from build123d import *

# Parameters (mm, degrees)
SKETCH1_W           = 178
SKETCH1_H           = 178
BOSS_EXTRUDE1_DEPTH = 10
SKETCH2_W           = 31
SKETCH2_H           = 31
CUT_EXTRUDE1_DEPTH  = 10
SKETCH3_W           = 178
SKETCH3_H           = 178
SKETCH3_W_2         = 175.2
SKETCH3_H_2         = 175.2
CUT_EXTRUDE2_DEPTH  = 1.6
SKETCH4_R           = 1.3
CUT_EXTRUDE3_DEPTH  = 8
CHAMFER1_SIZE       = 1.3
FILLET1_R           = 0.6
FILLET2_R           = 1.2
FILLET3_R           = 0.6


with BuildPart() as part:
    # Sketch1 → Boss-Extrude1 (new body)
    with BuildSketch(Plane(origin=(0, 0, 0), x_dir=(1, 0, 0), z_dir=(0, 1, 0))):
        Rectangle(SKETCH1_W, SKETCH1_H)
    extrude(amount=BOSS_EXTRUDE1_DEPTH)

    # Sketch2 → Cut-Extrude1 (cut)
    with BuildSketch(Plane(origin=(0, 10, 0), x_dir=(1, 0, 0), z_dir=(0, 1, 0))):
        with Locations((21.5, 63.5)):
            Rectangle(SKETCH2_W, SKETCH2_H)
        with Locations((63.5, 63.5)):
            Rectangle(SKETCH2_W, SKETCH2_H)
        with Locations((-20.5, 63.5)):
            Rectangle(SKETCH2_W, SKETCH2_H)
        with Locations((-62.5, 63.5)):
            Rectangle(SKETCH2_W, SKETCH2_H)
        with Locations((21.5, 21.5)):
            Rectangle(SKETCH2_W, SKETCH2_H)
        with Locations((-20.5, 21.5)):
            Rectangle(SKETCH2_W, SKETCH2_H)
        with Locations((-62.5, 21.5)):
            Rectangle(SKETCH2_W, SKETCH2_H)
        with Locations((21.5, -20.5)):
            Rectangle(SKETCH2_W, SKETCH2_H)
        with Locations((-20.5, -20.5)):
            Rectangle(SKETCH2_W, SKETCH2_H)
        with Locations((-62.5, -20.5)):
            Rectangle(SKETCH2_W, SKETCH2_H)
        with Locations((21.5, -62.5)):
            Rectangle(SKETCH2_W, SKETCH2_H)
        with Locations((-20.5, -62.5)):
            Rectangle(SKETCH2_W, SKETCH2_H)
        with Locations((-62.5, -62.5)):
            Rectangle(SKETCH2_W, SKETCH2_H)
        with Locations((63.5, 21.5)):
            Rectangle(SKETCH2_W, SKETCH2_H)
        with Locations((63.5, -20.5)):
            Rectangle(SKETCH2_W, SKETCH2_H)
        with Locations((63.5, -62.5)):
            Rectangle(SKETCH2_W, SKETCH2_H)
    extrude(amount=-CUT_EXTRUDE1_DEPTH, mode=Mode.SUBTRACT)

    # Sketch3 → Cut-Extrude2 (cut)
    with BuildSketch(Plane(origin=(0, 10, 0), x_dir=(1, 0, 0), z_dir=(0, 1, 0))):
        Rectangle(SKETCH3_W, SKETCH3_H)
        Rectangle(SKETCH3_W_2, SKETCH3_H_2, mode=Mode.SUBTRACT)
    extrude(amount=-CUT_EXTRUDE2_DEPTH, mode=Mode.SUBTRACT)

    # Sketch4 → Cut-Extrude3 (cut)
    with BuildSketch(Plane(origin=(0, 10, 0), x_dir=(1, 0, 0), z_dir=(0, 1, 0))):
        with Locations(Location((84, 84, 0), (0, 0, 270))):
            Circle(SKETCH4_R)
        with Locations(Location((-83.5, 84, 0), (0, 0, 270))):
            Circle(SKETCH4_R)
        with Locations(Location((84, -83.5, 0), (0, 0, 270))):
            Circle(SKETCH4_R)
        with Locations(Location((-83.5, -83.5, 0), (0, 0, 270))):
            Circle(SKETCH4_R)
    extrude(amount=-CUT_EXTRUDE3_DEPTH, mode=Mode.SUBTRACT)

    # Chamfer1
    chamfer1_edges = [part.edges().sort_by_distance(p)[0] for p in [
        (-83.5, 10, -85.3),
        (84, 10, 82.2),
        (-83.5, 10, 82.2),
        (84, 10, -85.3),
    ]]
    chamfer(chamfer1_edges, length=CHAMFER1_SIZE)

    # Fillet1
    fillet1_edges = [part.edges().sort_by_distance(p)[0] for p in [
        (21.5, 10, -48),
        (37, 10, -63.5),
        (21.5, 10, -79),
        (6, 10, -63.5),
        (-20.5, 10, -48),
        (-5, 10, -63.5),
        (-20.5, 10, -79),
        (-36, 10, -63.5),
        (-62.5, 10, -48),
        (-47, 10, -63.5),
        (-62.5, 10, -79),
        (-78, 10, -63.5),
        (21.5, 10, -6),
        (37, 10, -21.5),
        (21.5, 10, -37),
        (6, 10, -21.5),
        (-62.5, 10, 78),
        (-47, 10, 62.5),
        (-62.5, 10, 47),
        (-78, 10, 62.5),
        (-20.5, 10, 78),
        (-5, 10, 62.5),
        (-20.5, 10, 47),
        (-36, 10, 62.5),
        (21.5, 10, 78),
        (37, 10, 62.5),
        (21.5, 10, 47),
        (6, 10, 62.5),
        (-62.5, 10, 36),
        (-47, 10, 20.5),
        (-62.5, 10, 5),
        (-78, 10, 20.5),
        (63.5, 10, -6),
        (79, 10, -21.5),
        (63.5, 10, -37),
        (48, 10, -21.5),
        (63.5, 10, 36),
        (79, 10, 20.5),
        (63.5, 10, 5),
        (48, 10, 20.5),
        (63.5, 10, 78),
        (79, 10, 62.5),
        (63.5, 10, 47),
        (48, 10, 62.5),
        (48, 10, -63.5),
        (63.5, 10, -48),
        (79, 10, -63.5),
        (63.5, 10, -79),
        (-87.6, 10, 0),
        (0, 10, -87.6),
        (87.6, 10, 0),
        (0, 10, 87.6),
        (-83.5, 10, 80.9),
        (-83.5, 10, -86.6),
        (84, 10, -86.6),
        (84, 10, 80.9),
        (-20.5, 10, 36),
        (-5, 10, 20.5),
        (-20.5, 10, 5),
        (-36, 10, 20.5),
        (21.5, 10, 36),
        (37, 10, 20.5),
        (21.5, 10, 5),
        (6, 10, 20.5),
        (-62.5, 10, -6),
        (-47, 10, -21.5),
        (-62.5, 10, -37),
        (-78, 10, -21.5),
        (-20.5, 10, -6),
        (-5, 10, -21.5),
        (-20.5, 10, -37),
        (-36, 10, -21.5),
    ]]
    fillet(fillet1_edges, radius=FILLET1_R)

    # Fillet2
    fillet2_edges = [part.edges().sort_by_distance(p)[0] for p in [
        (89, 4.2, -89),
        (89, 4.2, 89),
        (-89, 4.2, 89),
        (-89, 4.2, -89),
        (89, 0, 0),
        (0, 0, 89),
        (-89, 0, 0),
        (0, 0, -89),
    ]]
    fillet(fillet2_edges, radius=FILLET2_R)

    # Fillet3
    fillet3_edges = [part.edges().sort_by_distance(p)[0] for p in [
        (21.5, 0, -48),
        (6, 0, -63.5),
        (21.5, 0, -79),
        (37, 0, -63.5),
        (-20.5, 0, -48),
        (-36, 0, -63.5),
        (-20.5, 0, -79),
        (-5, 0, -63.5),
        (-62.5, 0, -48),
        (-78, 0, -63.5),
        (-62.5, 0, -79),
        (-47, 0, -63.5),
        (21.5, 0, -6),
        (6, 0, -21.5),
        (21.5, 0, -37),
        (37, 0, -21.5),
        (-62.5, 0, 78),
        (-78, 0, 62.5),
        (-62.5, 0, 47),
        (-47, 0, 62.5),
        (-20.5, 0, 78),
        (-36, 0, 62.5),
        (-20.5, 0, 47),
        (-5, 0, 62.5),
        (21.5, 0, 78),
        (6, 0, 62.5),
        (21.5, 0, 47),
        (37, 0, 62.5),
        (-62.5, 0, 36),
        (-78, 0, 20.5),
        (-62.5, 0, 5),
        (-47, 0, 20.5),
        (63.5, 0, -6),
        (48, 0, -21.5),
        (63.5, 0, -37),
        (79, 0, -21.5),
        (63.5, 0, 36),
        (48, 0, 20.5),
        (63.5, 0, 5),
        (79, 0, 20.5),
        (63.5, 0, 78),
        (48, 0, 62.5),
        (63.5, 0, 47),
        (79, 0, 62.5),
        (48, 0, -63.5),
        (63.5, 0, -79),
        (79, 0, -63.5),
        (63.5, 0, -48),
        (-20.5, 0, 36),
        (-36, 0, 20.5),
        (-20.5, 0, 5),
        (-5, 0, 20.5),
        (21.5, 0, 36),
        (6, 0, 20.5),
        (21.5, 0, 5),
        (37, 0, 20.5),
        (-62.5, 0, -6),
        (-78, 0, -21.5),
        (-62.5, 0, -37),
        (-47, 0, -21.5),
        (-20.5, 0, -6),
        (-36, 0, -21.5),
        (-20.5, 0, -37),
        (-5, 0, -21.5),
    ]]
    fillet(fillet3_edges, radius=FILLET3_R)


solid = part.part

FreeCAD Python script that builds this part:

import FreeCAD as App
import Part
import Sketcher


def edges_at(feature, points):
    """Names of the edges that pass closest to the given points."""
    edges = feature.Shape.Edges
    near = lambda p: min(range(len(edges)), key=lambda i: edges[i].distToShape(Part.Vertex(*p))[0])
    return sorted({f"Edge{near(p) + 1}" for p in points})

doc = App.newDocument("Part")
body = doc.addObject("PartDesign::Body", "Body")

sketch1 = body.newObject("Sketcher::SketchObject", "Sketch")
sketch1.AttachmentSupport = (doc.getObject("XZ_Plane"), [""])
sketch1.MapMode = "FlatFace"
sketch1.addGeometry([
    Part.LineSegment(App.Vector(-89, -89, 0), App.Vector(-89, 89, 0)),
    Part.LineSegment(App.Vector(-89, 89, 0), App.Vector(89, 89, 0)),
    Part.LineSegment(App.Vector(89, 89, 0), App.Vector(89, -89, 0)),
    Part.LineSegment(App.Vector(89, -89, 0), App.Vector(-89, -89, 0)),
], False)
sketch1.addConstraint([
    Sketcher.Constraint("Coincident", 0, 2, 1, 1),
    Sketcher.Constraint("Coincident", 1, 2, 2, 1),
    Sketcher.Constraint("Coincident", 2, 2, 3, 1),
    Sketcher.Constraint("Coincident", 3, 2, 0, 1),
    Sketcher.Constraint("Vertical", 0),
    Sketcher.Constraint("Horizontal", 1),
    Sketcher.Constraint("Vertical", 2),
    Sketcher.Constraint("Horizontal", 3),
    Sketcher.Constraint("Symmetric", 0, 2, 2, 2, -1, 1),
    Sketcher.Constraint("Equal", 3, 0),
    Sketcher.Constraint("DistanceX", 1, 1, 1, 2, 178.0),
])
pad1 = body.newObject("PartDesign::Pad", "Pad")
pad1.Profile = sketch1
pad1.Length = 10
pad1.Reversed = True

sketch2 = body.newObject("Sketcher::SketchObject", "Sketch001")
sketch2.AttachmentSupport = (doc.getObject("XZ_Plane"), [""])
sketch2.MapMode = "FlatFace"
sketch2.AttachmentOffset = App.Placement(App.Vector(0, 0, -10), App.Rotation())
sketch2.addGeometry([
    Part.LineSegment(App.Vector(6, -79, 0), App.Vector(6, -48, 0)),
    Part.LineSegment(App.Vector(6, -48, 0), App.Vector(37, -48, 0)),
    Part.LineSegment(App.Vector(37, -48, 0), App.Vector(37, -79, 0)),
    Part.LineSegment(App.Vector(37, -79, 0), App.Vector(6, -79, 0)),
    Part.LineSegment(App.Vector(48, -79, 0), App.Vector(48, -48, 0)),
    Part.LineSegment(App.Vector(48, -48, 0), App.Vector(79, -48, 0)),
    Part.LineSegment(App.Vector(79, -48, 0), App.Vector(79, -79, 0)),
    Part.LineSegment(App.Vector(79, -79, 0), App.Vector(48, -79, 0)),
    Part.LineSegment(App.Vector(-36, -79, 0), App.Vector(-36, -48, 0)),
    Part.LineSegment(App.Vector(-36, -48, 0), App.Vector(-5, -48, 0)),
    Part.LineSegment(App.Vector(-5, -48, 0), App.Vector(-5, -79, 0)),
    Part.LineSegment(App.Vector(-5, -79, 0), App.Vector(-36, -79, 0)),
    Part.LineSegment(App.Vector(-78, -79, 0), App.Vector(-78, -48, 0)),
    Part.LineSegment(App.Vector(-78, -48, 0), App.Vector(-47, -48, 0)),
    Part.LineSegment(App.Vector(-47, -48, 0), App.Vector(-47, -79, 0)),
    Part.LineSegment(App.Vector(-47, -79, 0), App.Vector(-78, -79, 0)),
    Part.LineSegment(App.Vector(6, -37, 0), App.Vector(6, -6, 0)),
    Part.LineSegment(App.Vector(6, -6, 0), App.Vector(37, -6, 0)),
    Part.LineSegment(App.Vector(37, -6, 0), App.Vector(37, -37, 0)),
    Part.LineSegment(App.Vector(37, -37, 0), App.Vector(6, -37, 0)),
    Part.LineSegment(App.Vector(-36, -37, 0), App.Vector(-36, -6, 0)),
    Part.LineSegment(App.Vector(-36, -6, 0), App.Vector(-5, -6, 0)),
    Part.LineSegment(App.Vector(-5, -6, 0), App.Vector(-5, -37, 0)),
    Part.LineSegment(App.Vector(-5, -37, 0), App.Vector(-36, -37, 0)),
    Part.LineSegment(App.Vector(-78, -37, 0), App.Vector(-78, -6, 0)),
    Part.LineSegment(App.Vector(-78, -6, 0), App.Vector(-47, -6, 0)),
    Part.LineSegment(App.Vector(-47, -6, 0), App.Vector(-47, -37, 0)),
    Part.LineSegment(App.Vector(-47, -37, 0), App.Vector(-78, -37, 0)),
    Part.LineSegment(App.Vector(6, 5, 0), App.Vector(6, 36, 0)),
    Part.LineSegment(App.Vector(6, 36, 0), App.Vector(37, 36, 0)),
    Part.LineSegment(App.Vector(37, 36, 0), App.Vector(37, 5, 0)),
    Part.LineSegment(App.Vector(37, 5, 0), App.Vector(6, 5, 0)),
    Part.LineSegment(App.Vector(-36, 5, 0), App.Vector(-36, 36, 0)),
    Part.LineSegment(App.Vector(-36, 36, 0), App.Vector(-5, 36, 0)),
    Part.LineSegment(App.Vector(-5, 36, 0), App.Vector(-5, 5, 0)),
    Part.LineSegment(App.Vector(-5, 5, 0), App.Vector(-36, 5, 0)),
    Part.LineSegment(App.Vector(-78, 5, 0), App.Vector(-78, 36, 0)),
    Part.LineSegment(App.Vector(-78, 36, 0), App.Vector(-47, 36, 0)),
    Part.LineSegment(App.Vector(-47, 36, 0), App.Vector(-47, 5, 0)),
    Part.LineSegment(App.Vector(-47, 5, 0), App.Vector(-78, 5, 0)),
    Part.LineSegment(App.Vector(6, 47, 0), App.Vector(6, 78, 0)),
    Part.LineSegment(App.Vector(6, 78, 0), App.Vector(37, 78, 0)),
    Part.LineSegment(App.Vector(37, 78, 0), App.Vector(37, 47, 0)),
    Part.LineSegment(App.Vector(37, 47, 0), App.Vector(6, 47, 0)),
    Part.LineSegment(App.Vector(-36, 47, 0), App.Vector(-36, 78, 0)),
    Part.LineSegment(App.Vector(-36, 78, 0), App.Vector(-5, 78, 0)),
    Part.LineSegment(App.Vector(-5, 78, 0), App.Vector(-5, 47, 0)),
    Part.LineSegment(App.Vector(-5, 47, 0), App.Vector(-36, 47, 0)),
    Part.LineSegment(App.Vector(-78, 47, 0), App.Vector(-78, 78, 0)),
    Part.LineSegment(App.Vector(-78, 78, 0), App.Vector(-47, 78, 0)),
    Part.LineSegment(App.Vector(-47, 78, 0), App.Vector(-47, 47, 0)),
    Part.LineSegment(App.Vector(-47, 47, 0), App.Vector(-78, 47, 0)),
    Part.LineSegment(App.Vector(48, -37, 0), App.Vector(48, -6, 0)),
    Part.LineSegment(App.Vector(48, -6, 0), App.Vector(79, -6, 0)),
    Part.LineSegment(App.Vector(79, -6, 0), App.Vector(79, -37, 0)),
    Part.LineSegment(App.Vector(79, -37, 0), App.Vector(48, -37, 0)),
    Part.LineSegment(App.Vector(48, 5, 0), App.Vector(48, 36, 0)),
    Part.LineSegment(App.Vector(48, 36, 0), App.Vector(79, 36, 0)),
    Part.LineSegment(App.Vector(79, 36, 0), App.Vector(79, 5, 0)),
    Part.LineSegment(App.Vector(79, 5, 0), App.Vector(48, 5, 0)),
    Part.LineSegment(App.Vector(48, 47, 0), App.Vector(48, 78, 0)),
    Part.LineSegment(App.Vector(48, 78, 0), App.Vector(79, 78, 0)),
    Part.LineSegment(App.Vector(79, 78, 0), App.Vector(79, 47, 0)),
    Part.LineSegment(App.Vector(79, 47, 0), App.Vector(48, 47, 0)),
], False)
sketch2.addConstraint([
    Sketcher.Constraint("Coincident", 0, 2, 1, 1),
    Sketcher.Constraint("Coincident", 1, 2, 2, 1),
    Sketcher.Constraint("Coincident", 2, 2, 3, 1),
    Sketcher.Constraint("Coincident", 3, 2, 0, 1),
    Sketcher.Constraint("Coincident", 4, 2, 5, 1),
    Sketcher.Constraint("Coincident", 5, 2, 6, 1),
    Sketcher.Constraint("Coincident", 6, 2, 7, 1),
    Sketcher.Constraint("Coincident", 7, 2, 4, 1),
    Sketcher.Constraint("Coincident", 8, 2, 9, 1),
    Sketcher.Constraint("Coincident", 9, 2, 10, 1),
    Sketcher.Constraint("Coincident", 10, 2, 11, 1),
    Sketcher.Constraint("Coincident", 11, 2, 8, 1),
    Sketcher.Constraint("Coincident", 12, 2, 13, 1),
    Sketcher.Constraint("Coincident", 13, 2, 14, 1),
    Sketcher.Constraint("Coincident", 14, 2, 15, 1),
    Sketcher.Constraint("Coincident", 15, 2, 12, 1),
    Sketcher.Constraint("Coincident", 16, 2, 17, 1),
    Sketcher.Constraint("Coincident", 17, 2, 18, 1),
    Sketcher.Constraint("Coincident", 18, 2, 19, 1),
    Sketcher.Constraint("Coincident", 19, 2, 16, 1),
    Sketcher.Constraint("Coincident", 20, 2, 21, 1),
    Sketcher.Constraint("Coincident", 21, 2, 22, 1),
    Sketcher.Constraint("Coincident", 22, 2, 23, 1),
    Sketcher.Constraint("Coincident", 23, 2, 20, 1),
    Sketcher.Constraint("Coincident", 24, 2, 25, 1),
    Sketcher.Constraint("Coincident", 25, 2, 26, 1),
    Sketcher.Constraint("Coincident", 26, 2, 27, 1),
    Sketcher.Constraint("Coincident", 27, 2, 24, 1),
    Sketcher.Constraint("Coincident", 28, 2, 29, 1),
    Sketcher.Constraint("Coincident", 29, 2, 30, 1),
    Sketcher.Constraint("Coincident", 30, 2, 31, 1),
    Sketcher.Constraint("Coincident", 31, 2, 28, 1),
    Sketcher.Constraint("Coincident", 32, 2, 33, 1),
    Sketcher.Constraint("Coincident", 33, 2, 34, 1),
    Sketcher.Constraint("Coincident", 34, 2, 35, 1),
    Sketcher.Constraint("Coincident", 35, 2, 32, 1),
    Sketcher.Constraint("Coincident", 36, 2, 37, 1),
    Sketcher.Constraint("Coincident", 37, 2, 38, 1),
    Sketcher.Constraint("Coincident", 38, 2, 39, 1),
    Sketcher.Constraint("Coincident", 39, 2, 36, 1),
    Sketcher.Constraint("Coincident", 40, 2, 41, 1),
    Sketcher.Constraint("Coincident", 41, 2, 42, 1),
    Sketcher.Constraint("Coincident", 42, 2, 43, 1),
    Sketcher.Constraint("Coincident", 43, 2, 40, 1),
    Sketcher.Constraint("Coincident", 44, 2, 45, 1),
    Sketcher.Constraint("Coincident", 45, 2, 46, 1),
    Sketcher.Constraint("Coincident", 46, 2, 47, 1),
    Sketcher.Constraint("Coincident", 47, 2, 44, 1),
    Sketcher.Constraint("Coincident", 48, 2, 49, 1),
    Sketcher.Constraint("Coincident", 49, 2, 50, 1),
    Sketcher.Constraint("Coincident", 50, 2, 51, 1),
    Sketcher.Constraint("Coincident", 51, 2, 48, 1),
    Sketcher.Constraint("Coincident", 52, 2, 53, 1),
    Sketcher.Constraint("Coincident", 53, 2, 54, 1),
    Sketcher.Constraint("Coincident", 54, 2, 55, 1),
    Sketcher.Constraint("Coincident", 55, 2, 52, 1),
    Sketcher.Constraint("Coincident", 56, 2, 57, 1),
    Sketcher.Constraint("Coincident", 57, 2, 58, 1),
    Sketcher.Constraint("Coincident", 58, 2, 59, 1),
    Sketcher.Constraint("Coincident", 59, 2, 56, 1),
    Sketcher.Constraint("Coincident", 60, 2, 61, 1),
    Sketcher.Constraint("Coincident", 61, 2, 62, 1),
    Sketcher.Constraint("Coincident", 62, 2, 63, 1),
    Sketcher.Constraint("Coincident", 63, 2, 60, 1),
    Sketcher.Constraint("Vertical", 0),
    Sketcher.Constraint("Horizontal", 1),
    Sketcher.Constraint("Vertical", 2),
    Sketcher.Constraint("Horizontal", 3),
    Sketcher.Constraint("Vertical", 4),
    Sketcher.Constraint("Horizontal", 5),
    Sketcher.Constraint("Vertical", 6),
    Sketcher.Constraint("Horizontal", 7),
    Sketcher.Constraint("Vertical", 8),
    Sketcher.Constraint("Horizontal", 9),
    Sketcher.Constraint("Vertical", 10),
    Sketcher.Constraint("Horizontal", 11),
    Sketcher.Constraint("Vertical", 12),
    Sketcher.Constraint("Horizontal", 13),
    Sketcher.Constraint("Vertical", 14),
    Sketcher.Constraint("Horizontal", 15),
    Sketcher.Constraint("Vertical", 16),
    Sketcher.Constraint("Horizontal", 17),
    Sketcher.Constraint("Vertical", 18),
    Sketcher.Constraint("Horizontal", 19),
    Sketcher.Constraint("Vertical", 20),
    Sketcher.Constraint("Horizontal", 21),
    Sketcher.Constraint("Vertical", 22),
    Sketcher.Constraint("Horizontal", 23),
    Sketcher.Constraint("Vertical", 24),
    Sketcher.Constraint("Horizontal", 25),
    Sketcher.Constraint("Vertical", 26),
    Sketcher.Constraint("Horizontal", 27),
    Sketcher.Constraint("Vertical", 28),
    Sketcher.Constraint("Horizontal", 29),
    Sketcher.Constraint("Vertical", 30),
    Sketcher.Constraint("Horizontal", 31),
    Sketcher.Constraint("Vertical", 32),
    Sketcher.Constraint("Horizontal", 33),
    Sketcher.Constraint("Vertical", 34),
    Sketcher.Constraint("Horizontal", 35),
    Sketcher.Constraint("Vertical", 36),
    Sketcher.Constraint("Horizontal", 37),
    Sketcher.Constraint("Vertical", 38),
    Sketcher.Constraint("Horizontal", 39),
    Sketcher.Constraint("Vertical", 40),
    Sketcher.Constraint("Horizontal", 41),
    Sketcher.Constraint("Vertical", 42),
    Sketcher.Constraint("Horizontal", 43),
    Sketcher.Constraint("Vertical", 44),
    Sketcher.Constraint("Horizontal", 45),
    Sketcher.Constraint("Vertical", 46),
    Sketcher.Constraint("Horizontal", 47),
    Sketcher.Constraint("Vertical", 48),
    Sketcher.Constraint("Horizontal", 49),
    Sketcher.Constraint("Vertical", 50),
    Sketcher.Constraint("Horizontal", 51),
    Sketcher.Constraint("Vertical", 52),
    Sketcher.Constraint("Horizontal", 53),
    Sketcher.Constraint("Vertical", 54),
    Sketcher.Constraint("Horizontal", 55),
    Sketcher.Constraint("Vertical", 56),
    Sketcher.Constraint("Horizontal", 57),
    Sketcher.Constraint("Vertical", 58),
    Sketcher.Constraint("Horizontal", 59),
    Sketcher.Constraint("Vertical", 60),
    Sketcher.Constraint("Horizontal", 61),
    Sketcher.Constraint("Vertical", 62),
    Sketcher.Constraint("Horizontal", 63),
    Sketcher.Constraint("Horizontal", 1, 2, 4, 2),
    Sketcher.Constraint("Horizontal", 3, 2, 6, 2),
    Sketcher.Constraint("Horizontal", 5, 2, 8, 2),
    Sketcher.Constraint("Horizontal", 7, 2, 10, 2),
    Sketcher.Constraint("Horizontal", 9, 2, 12, 2),
    Sketcher.Constraint("Horizontal", 11, 2, 14, 2),
    Sketcher.Constraint("Horizontal", 17, 2, 20, 2),
    Sketcher.Constraint("Horizontal", 19, 2, 22, 2),
    Sketcher.Constraint("Horizontal", 21, 2, 24, 2),
    Sketcher.Constraint("Horizontal", 23, 2, 26, 2),
    Sketcher.Constraint("Horizontal", 29, 2, 32, 2),
    Sketcher.Constraint("Horizontal", 31, 2, 34, 2),
    Sketcher.Constraint("Horizontal", 33, 2, 36, 2),
    Sketcher.Constraint("Horizontal", 35, 2, 38, 2),
    Sketcher.Constraint("Horizontal", 41, 2, 44, 2),
    Sketcher.Constraint("Horizontal", 43, 2, 46, 2),
    Sketcher.Constraint("Horizontal", 45, 2, 48, 2),
    Sketcher.Constraint("Horizontal", 47, 2, 50, 2),
    Sketcher.Constraint("Horizontal", 25, 2, 52, 2),
    Sketcher.Constraint("Horizontal", 27, 2, 54, 2),
    Sketcher.Constraint("Horizontal", 37, 2, 56, 2),
    Sketcher.Constraint("Horizontal", 39, 2, 58, 2),
    Sketcher.Constraint("Horizontal", 49, 2, 60, 2),
    Sketcher.Constraint("Horizontal", 51, 2, 62, 2),
    Sketcher.Constraint("Vertical", 3, 2, 16, 2),
    Sketcher.Constraint("Vertical", 2, 2, 17, 2),
    Sketcher.Constraint("Vertical", 11, 2, 20, 2),
    Sketcher.Constraint("Vertical", 10, 2, 21, 2),
    Sketcher.Constraint("Vertical", 15, 2, 24, 2),
    Sketcher.Constraint("Vertical", 14, 2, 25, 2),
    Sketcher.Constraint("Vertical", 19, 2, 28, 2),
    Sketcher.Constraint("Vertical", 18, 2, 29, 2),
    Sketcher.Constraint("Vertical", 23, 2, 32, 2),
    Sketcher.Constraint("Vertical", 22, 2, 33, 2),
    Sketcher.Constraint("Vertical", 27, 2, 36, 2),
    Sketcher.Constraint("Vertical", 26, 2, 37, 2),
    Sketcher.Constraint("Vertical", 31, 2, 40, 2),
    Sketcher.Constraint("Vertical", 30, 2, 41, 2),
    Sketcher.Constraint("Vertical", 35, 2, 44, 2),
    Sketcher.Constraint("Vertical", 34, 2, 45, 2),
    Sketcher.Constraint("Vertical", 39, 2, 48, 2),
    Sketcher.Constraint("Vertical", 38, 2, 49, 2),
    Sketcher.Constraint("Vertical", 7, 2, 52, 2),
    Sketcher.Constraint("Vertical", 6, 2, 53, 2),
    Sketcher.Constraint("Vertical", 55, 2, 56, 2),
    Sketcher.Constraint("Vertical", 54, 2, 57, 2),
    Sketcher.Constraint("Vertical", 59, 2, 60, 2),
    Sketcher.Constraint("Vertical", 58, 2, 61, 2),
    Sketcher.Constraint("Equal", 3, 5),
    Sketcher.Constraint("Equal", 7, 9),
    Sketcher.Constraint("Equal", 11, 13),
    Sketcher.Constraint("Equal", 63, 0),
    Sketcher.Constraint("Equal", 14, 16),
    Sketcher.Constraint("Equal", 26, 28),
    Sketcher.Constraint("Equal", 38, 40),
    Sketcher.Constraint("DistanceX", 1, 1, 1, 2, 31.0),
    Sketcher.Constraint("DistanceX", -1, 1, 0, 2, 6.0),
    Sketcher.Constraint("DistanceY", 0, 2, -1, 1, 48.0),
    Sketcher.Constraint("DistanceX", -1, 1, 4, 2, 48.0),
    Sketcher.Constraint("DistanceX", 8, 2, -1, 1, 36.0),
    Sketcher.Constraint("DistanceX", 12, 2, -1, 1, 78.0),
    Sketcher.Constraint("DistanceY", 16, 2, -1, 1, 6.0),
    Sketcher.Constraint("DistanceY", -1, 1, 28, 2, 36.0),
    Sketcher.Constraint("DistanceY", -1, 1, 40, 2, 78.0),
])
pocket1 = body.newObject("PartDesign::Pocket", "Pocket")
pocket1.Profile = sketch2
pocket1.Length = 10
pocket1.Reversed = True

sketch3 = body.newObject("Sketcher::SketchObject", "Sketch002")
sketch3.AttachmentSupport = (doc.getObject("XZ_Plane"), [""])
sketch3.MapMode = "FlatFace"
sketch3.AttachmentOffset = App.Placement(App.Vector(0, 0, -10), App.Rotation())
sketch3.addGeometry([
    Part.LineSegment(App.Vector(-89, -89, 0), App.Vector(-89, 89, 0)),
    Part.LineSegment(App.Vector(-89, 89, 0), App.Vector(89, 89, 0)),
    Part.LineSegment(App.Vector(89, 89, 0), App.Vector(89, -89, 0)),
    Part.LineSegment(App.Vector(89, -89, 0), App.Vector(-89, -89, 0)),
    Part.LineSegment(App.Vector(88, 88, 0), App.Vector(-88, 88, 0)),
    Part.LineSegment(App.Vector(-88, 88, 0), App.Vector(-88, -88, 0)),
    Part.LineSegment(App.Vector(-88, -88, 0), App.Vector(88, -88, 0)),
    Part.LineSegment(App.Vector(88, -88, 0), App.Vector(88, 88, 0)),
], False)
sketch3.addConstraint([
    Sketcher.Constraint("Coincident", 0, 2, 1, 1),
    Sketcher.Constraint("Coincident", 1, 2, 2, 1),
    Sketcher.Constraint("Coincident", 2, 2, 3, 1),
    Sketcher.Constraint("Coincident", 3, 2, 0, 1),
    Sketcher.Constraint("Coincident", 4, 2, 5, 1),
    Sketcher.Constraint("Coincident", 5, 2, 6, 1),
    Sketcher.Constraint("Coincident", 6, 2, 7, 1),
    Sketcher.Constraint("Coincident", 7, 2, 4, 1),
    Sketcher.Constraint("Vertical", 0),
    Sketcher.Constraint("Horizontal", 1),
    Sketcher.Constraint("Vertical", 2),
    Sketcher.Constraint("Horizontal", 3),
    Sketcher.Constraint("Horizontal", 4),
    Sketcher.Constraint("Vertical", 5),
    Sketcher.Constraint("Horizontal", 6),
    Sketcher.Constraint("Vertical", 7),
    Sketcher.Constraint("Symmetric", 0, 2, 2, 2, -1, 1),
    Sketcher.Constraint("Symmetric", 4, 2, 6, 2, -1, 1),
    Sketcher.Constraint("Equal", 3, 0),
    Sketcher.Constraint("Equal", 6, 5),
    Sketcher.Constraint("DistanceX", 1, 1, 1, 2, 178.0),
    Sketcher.Constraint("DistanceX", 4, 2, 4, 1, 175.2),
])
pocket2 = body.newObject("PartDesign::Pocket", "Pocket001")
pocket2.Profile = sketch3
pocket2.Length = 1.6
pocket2.Reversed = True

sketch4 = body.newObject("Sketcher::SketchObject", "Sketch003")
sketch4.AttachmentSupport = (doc.getObject("XZ_Plane"), [""])
sketch4.MapMode = "FlatFace"
sketch4.AttachmentOffset = App.Placement(App.Vector(0, 0, -10), App.Rotation())
sketch4.addGeometry([
    Part.Circle(App.Vector(84, -84, 0), App.Vector(0, 0, 1), 1.3),
    Part.Circle(App.Vector(-83.5, -84, 0), App.Vector(0, 0, 1), 1.3),
    Part.Circle(App.Vector(84, 83.5, 0), App.Vector(0, 0, 1), 1.3),
    Part.Circle(App.Vector(-83.5, 83.5, 0), App.Vector(0, 0, 1), 1.3),
], False)
sketch4.addConstraint([
    Sketcher.Constraint("Equal", 0, 1),
    Sketcher.Constraint("Equal", 1, 2),
    Sketcher.Constraint("Equal", 2, 3),
    Sketcher.Constraint("Horizontal", 0, 3, 1, 3),
    Sketcher.Constraint("Horizontal", 2, 3, 3, 3),
    Sketcher.Constraint("Vertical", 0, 3, 2, 3),
    Sketcher.Constraint("Vertical", 1, 3, 3, 3),
    Sketcher.Constraint("Diameter", 0, 2.6),
    Sketcher.Constraint("DistanceX", -1, 1, 0, 3, 84.0),
    Sketcher.Constraint("DistanceY", 0, 3, -1, 1, 84.0),
    Sketcher.Constraint("DistanceX", 1, 3, -1, 1, 83.5),
    Sketcher.Constraint("DistanceY", -1, 1, 2, 3, 83.5),
])
pocket3 = body.newObject("PartDesign::Pocket", "Pocket002")
pocket3.Profile = sketch4
pocket3.Length = 8
pocket3.Reversed = True
doc.recompute()

chamfer = body.newObject("PartDesign::Chamfer", "Chamfer")
chamfer.Base = (pocket3, edges_at(pocket3, [
    (-83.5, 10, -85.3),
    (84, 10, 82.2),
    (-83.5, 10, 82.2),
    (84, 10, -85.3),
]))
chamfer.Size = 1.3
doc.recompute()

fillet = body.newObject("PartDesign::Fillet", "Fillet")
fillet.Base = (chamfer, edges_at(chamfer, [
    (21.5, 10, -48),
    (37, 10, -63.5),
    (21.5, 10, -79),
    (6, 10, -63.5),
    (-20.5, 10, -48),
    (-5, 10, -63.5),
    (-20.5, 10, -79),
    (-36, 10, -63.5),
    (-62.5, 10, -48),
    (-47, 10, -63.5),
    (-62.5, 10, -79),
    (-78, 10, -63.5),
    (21.5, 10, -6),
    (37, 10, -21.5),
    (21.5, 10, -37),
    (6, 10, -21.5),
    (-62.5, 10, 78),
    (-47, 10, 62.5),
    (-62.5, 10, 47),
    (-78, 10, 62.5),
    (-20.5, 10, 78),
    (-5, 10, 62.5),
    (-20.5, 10, 47),
    (-36, 10, 62.5),
    (21.5, 10, 78),
    (37, 10, 62.5),
    (21.5, 10, 47),
    (6, 10, 62.5),
    (-62.5, 10, 36),
    (-47, 10, 20.5),
    (-62.5, 10, 5),
    (-78, 10, 20.5),
    (63.5, 10, -6),
    (79, 10, -21.5),
    (63.5, 10, -37),
    (48, 10, -21.5),
    (63.5, 10, 36),
    (79, 10, 20.5),
    (63.5, 10, 5),
    (48, 10, 20.5),
    (63.5, 10, 78),
    (79, 10, 62.5),
    (63.5, 10, 47),
    (48, 10, 62.5),
    (48, 10, -63.5),
    (63.5, 10, -48),
    (79, 10, -63.5),
    (63.5, 10, -79),
    (-87.6, 10, 0),
    (0, 10, -87.6),
    (87.6, 10, 0),
    (0, 10, 87.6),
    (-83.5, 10, 80.9),
    (-83.5, 10, -86.6),
    (84, 10, -86.6),
    (84, 10, 80.9),
    (-20.5, 10, 36),
    (-5, 10, 20.5),
    (-20.5, 10, 5),
    (-36, 10, 20.5),
    (21.5, 10, 36),
    (37, 10, 20.5),
    (21.5, 10, 5),
    (6, 10, 20.5),
    (-62.5, 10, -6),
    (-47, 10, -21.5),
    (-62.5, 10, -37),
    (-78, 10, -21.5),
    (-20.5, 10, -6),
    (-5, 10, -21.5),
    (-20.5, 10, -37),
    (-36, 10, -21.5),
]))
fillet.Radius = 0.6
doc.recompute()

fillet2 = body.newObject("PartDesign::Fillet", "Fillet001")
fillet2.Base = (fillet, edges_at(fillet, [
    (89, 4.2, -89),
    (89, 4.2, 89),
    (-89, 4.2, 89),
    (-89, 4.2, -89),
    (89, 0, 0),
    (0, 0, 89),
    (-89, 0, 0),
    (0, 0, -89),
]))
fillet2.Radius = 1.2
doc.recompute()

fillet3 = body.newObject("PartDesign::Fillet", "Fillet002")
fillet3.Base = (fillet2, edges_at(fillet2, [
    (21.5, 0, -48),
    (6, 0, -63.5),
    (21.5, 0, -79),
    (37, 0, -63.5),
    (-20.5, 0, -48),
    (-36, 0, -63.5),
    (-20.5, 0, -79),
    (-5, 0, -63.5),
    (-62.5, 0, -48),
    (-78, 0, -63.5),
    (-62.5, 0, -79),
    (-47, 0, -63.5),
    (21.5, 0, -6),
    (6, 0, -21.5),
    (21.5, 0, -37),
    (37, 0, -21.5),
    (-62.5, 0, 78),
    (-78, 0, 62.5),
    (-62.5, 0, 47),
    (-47, 0, 62.5),
    (-20.5, 0, 78),
    (-36, 0, 62.5),
    (-20.5, 0, 47),
    (-5, 0, 62.5),
    (21.5, 0, 78),
    (6, 0, 62.5),
    (21.5, 0, 47),
    (37, 0, 62.5),
    (-62.5, 0, 36),
    (-78, 0, 20.5),
    (-62.5, 0, 5),
    (-47, 0, 20.5),
    (63.5, 0, -6),
    (48, 0, -21.5),
    (63.5, 0, -37),
    (79, 0, -21.5),
    (63.5, 0, 36),
    (48, 0, 20.5),
    (63.5, 0, 5),
    (79, 0, 20.5),
    (63.5, 0, 78),
    (48, 0, 62.5),
    (63.5, 0, 47),
    (79, 0, 62.5),
    (48, 0, -63.5),
    (63.5, 0, -79),
    (79, 0, -63.5),
    (63.5, 0, -48),
    (-20.5, 0, 36),
    (-36, 0, 20.5),
    (-20.5, 0, 5),
    (-5, 0, 20.5),
    (21.5, 0, 36),
    (6, 0, 20.5),
    (21.5, 0, 5),
    (37, 0, 20.5),
    (-62.5, 0, -6),
    (-78, 0, -21.5),
    (-62.5, 0, -37),
    (-47, 0, -21.5),
    (-20.5, 0, -6),
    (-36, 0, -21.5),
    (-20.5, 0, -37),
    (-5, 0, -21.5),
]))
fillet3.Radius = 0.6

doc.recompute()
